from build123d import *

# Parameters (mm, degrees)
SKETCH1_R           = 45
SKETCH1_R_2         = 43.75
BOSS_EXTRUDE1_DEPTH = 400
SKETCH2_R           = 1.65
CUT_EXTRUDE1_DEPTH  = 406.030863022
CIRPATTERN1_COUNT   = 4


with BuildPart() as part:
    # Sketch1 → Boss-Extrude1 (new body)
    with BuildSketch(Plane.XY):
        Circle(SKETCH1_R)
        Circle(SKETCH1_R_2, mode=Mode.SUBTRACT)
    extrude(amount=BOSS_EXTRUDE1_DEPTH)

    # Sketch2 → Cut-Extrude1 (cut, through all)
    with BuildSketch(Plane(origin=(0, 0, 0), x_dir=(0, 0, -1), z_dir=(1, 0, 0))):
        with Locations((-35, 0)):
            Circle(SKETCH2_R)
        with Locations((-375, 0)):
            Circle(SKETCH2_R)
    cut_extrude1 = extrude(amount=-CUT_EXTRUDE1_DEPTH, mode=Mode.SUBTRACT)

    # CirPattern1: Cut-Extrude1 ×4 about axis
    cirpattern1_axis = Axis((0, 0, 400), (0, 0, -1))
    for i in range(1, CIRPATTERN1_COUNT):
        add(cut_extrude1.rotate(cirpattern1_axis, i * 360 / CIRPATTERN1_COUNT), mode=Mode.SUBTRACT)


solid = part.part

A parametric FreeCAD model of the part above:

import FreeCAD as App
import Part
import Sketcher
Q = App.Units.Quantity

doc = App.newDocument("Part")
params = doc.addObject("Spreadsheet::Sheet", "Params")
for row, (alias, value) in enumerate([
    ("sketch1_diameter", "90 mm"),
    ("sketch1_diameter2", "87.5 mm"),
    ("pad1_length", "400 mm"),
    ("sketch2_diameter", "3.3 mm"),
], start=1):
    params.set(f"A{row}", alias)
    params.set(f"B{row}", "=" + value)
    params.setAlias(f"B{row}", alias)

body = doc.addObject("PartDesign::Body", "Body")

sketch1 = doc.addObject("Sketcher::SketchObject", "Sketch")
body.addObject(sketch1)
sketch1.AttachmentSupport = (doc.XY_Plane, [""])
sketch1.MapMode = "FlatFace"
sketch1.addGeometry([
    Part.Circle(App.Vector(0, 0, 0), App.Vector(0, 0, 1), 45),
    Part.Circle(App.Vector(0, 0, 0), App.Vector(0, 0, 1), 44),
], False)
sketch1.addConstraint([
    Sketcher.Constraint("Coincident", 0, 3, -1, 1),
    Sketcher.Constraint("Coincident", 1, 3, -1, 1),
    Sketcher.Constraint("Diameter", 0, Q("90 mm")),
    Sketcher.Constraint("Diameter", 1, Q("87.5 mm")),
])
sketch1.setExpression("Constraints[2]", "Params.sketch1_diameter")
sketch1.setExpression("Constraints[3]", "Params.sketch1_diameter2")
pad1 = doc.addObject("PartDesign::Pad", "Pad")
body.addObject(pad1)
pad1.Profile = sketch1
pad1.setExpression("Length", "Params.pad1_length")

sketch2 = doc.addObject("Sketcher::SketchObject", "Sketch001")
body.addObject(sketch2)
sketch2.AttachmentSupport = (doc.YZ_Plane, [""])
sketch2.MapMode = "FlatFace"
sketch2.addGeometry([
    Part.Circle(App.Vector(0, 35, 0), App.Vector(0, 0, 1), 1.6),
    Part.Circle(App.Vector(0, 375, 0), App.Vector(0, 0, 1), 1.6),
], False)
sketch2.addConstraint([
    Sketcher.Constraint("Equal", 0, 1),
    Sketcher.Constraint("PointOnObject", 0, 3, -2),
    Sketcher.Constraint("PointOnObject", 1, 3, -2),
    Sketcher.Constraint("Diameter", 0, Q("3.3 mm")),
    Sketcher.Constraint("DistanceY", -1, 1, 0, 3, Q("35 mm")),
    Sketcher.Constraint("DistanceY", -1, 1, 1, 3, Q("375 mm")),
])
sketch2.setExpression("Constraints[3]", "Params.sketch2_diameter")
pocket1 = doc.addObject("PartDesign::Pocket", "Pocket")
body.addObject(pocket1)
pocket1.Profile = sketch2
pocket1.Type = "ThroughAll"
doc.recompute()

polarpattern = doc.addObject("PartDesign::PolarPattern", "PolarPattern")
body.addObject(polarpattern)
polarpattern.Originals = [pocket1]
polarpattern.Axis = (doc.Z_Axis, [""])
polarpattern.Angle = 360
polarpattern.Occurrences = 4
body.Tip = polarpattern

doc.recompute()
